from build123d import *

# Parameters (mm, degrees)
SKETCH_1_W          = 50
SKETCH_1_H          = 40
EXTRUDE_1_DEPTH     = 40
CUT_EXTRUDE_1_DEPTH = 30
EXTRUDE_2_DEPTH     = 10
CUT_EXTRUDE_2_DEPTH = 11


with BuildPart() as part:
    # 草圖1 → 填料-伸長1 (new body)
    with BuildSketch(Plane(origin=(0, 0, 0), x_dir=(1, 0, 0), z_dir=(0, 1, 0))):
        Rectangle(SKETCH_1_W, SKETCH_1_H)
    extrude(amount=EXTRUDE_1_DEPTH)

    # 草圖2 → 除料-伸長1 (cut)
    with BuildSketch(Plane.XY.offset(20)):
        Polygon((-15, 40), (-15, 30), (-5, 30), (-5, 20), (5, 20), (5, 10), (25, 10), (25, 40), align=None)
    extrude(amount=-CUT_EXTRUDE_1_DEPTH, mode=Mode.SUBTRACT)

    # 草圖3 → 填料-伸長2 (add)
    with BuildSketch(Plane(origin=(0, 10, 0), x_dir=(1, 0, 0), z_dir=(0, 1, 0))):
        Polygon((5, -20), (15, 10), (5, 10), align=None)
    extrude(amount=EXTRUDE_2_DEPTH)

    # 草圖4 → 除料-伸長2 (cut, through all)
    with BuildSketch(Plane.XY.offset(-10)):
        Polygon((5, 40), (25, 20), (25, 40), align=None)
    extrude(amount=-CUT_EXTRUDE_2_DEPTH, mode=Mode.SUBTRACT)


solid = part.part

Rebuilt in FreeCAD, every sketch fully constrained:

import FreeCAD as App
import Part
import Sketcher

V = App.Vector
Q = App.Units.Quantity

doc = App.newDocument("Part")
params = doc.addObject("Spreadsheet::Sheet", "Params")
for row, (alias, value) in enumerate([
    ("sketch1_width", "50 mm"),
    ("sketch1_height", "40 mm"),
    ("pad1_length", "40 mm"),
    ("sketch2_width", "10 mm"),
    ("sketch2_width2", "20 mm"),
    ("pocket1_length", "30 mm"),
    ("sketch3_width", "10 mm"),
    ("sketch3_height", "30 mm"),
    ("pad2_length", "10 mm"),
    ("sketch4_width", "20 mm"),
], start=1):
    params.set(f"A{row}", alias)
    params.set(f"B{row}", "=" + value)
    params.setAlias(f"B{row}", alias)

body = doc.addObject("PartDesign::Body", "Body")

sketch1 = doc.addObject("Sketcher::SketchObject", "Sketch")
body.addObject(sketch1)
sketch1.AttachmentSupport = (doc.XZ_Plane, [""])
sketch1.MapMode = "FlatFace"
sketch1.addGeometry([
    Part.LineSegment(V(-25, -20, 0), V(-25, 20, 0)),
    Part.LineSegment(V(-25, 20, 0), V(25, 20, 0)),
    Part.LineSegment(V(25, 20, 0), V(25, -20, 0)),
    Part.LineSegment(V(25, -20, 0), V(-25, -20, 0)),
], False)
sketch1.addConstraint([
    Sketcher.Constraint("Coincident", 0, 2, 1, 1),
    Sketcher.Constraint("Coincident", 1, 2, 2, 1),
    Sketcher.Constraint("Coincident", 2, 2, 3, 1),
    Sketcher.Constraint("Coincident", 3, 2, 0, 1),
    Sketcher.Constraint("Vertical", 0),
    Sketcher.Constraint("Horizontal", 1),
    Sketcher.Constraint("Vertical", 2),
    Sketcher.Constraint("Horizontal", 3),
    Sketcher.Constraint("Symmetric", 0, 2, 2, 2, -1, 1),
    Sketcher.Constraint("DistanceX", 1, 1, 1, 2, Q("50 mm")),
    Sketcher.Constraint("DistanceY", 0, 1, 0, 2, Q("40 mm")),
])
sketch1.setExpression("Constraints[9]", "Params.sketch1_width")
sketch1.setExpression("Constraints[10]", "Params.sketch1_height")
pad1 = doc.addObject("PartDesign::Pad", "Pad")
body.addObject(pad1)
pad1.Profile = sketch1
pad1.setExpression("Length", "Params.pad1_length")
pad1.Reversed = True

sketch2 = doc.addObject("Sketcher::SketchObject", "Sketch001")
body.addObject(sketch2)
sketch2.AttachmentSupport = (doc.XY_Plane, [""])
sketch2.MapMode = "FlatFace"
sketch2.AttachmentOffset = App.Placement(V(0, 0, 20), App.Rotation())
sketch2.addGeometry([
    Part.LineSegment(V(-15, 40, 0), V(-15, 30, 0)),
    Part.LineSegment(V(-15, 30, 0), V(-5, 30, 0)),
    Part.LineSegment(V(-5, 30, 0), V(-5, 20, 0)),
    Part.LineSegment(V(-5, 20, 0), V(5, 20, 0)),
    Part.LineSegment(V(5, 20, 0), V(5, 10, 0)),
    Part.LineSegment(V(5, 10, 0), V(25, 10, 0)),
    Part.LineSegment(V(25, 10, 0), V(25, 40, 0)),
    Part.LineSegment(V(25, 40, 0), V(-15, 40, 0)),
], False)
sketch2.addConstraint([
    Sketcher.Constraint("Coincident", 0, 2, 1, 1),
    Sketcher.Constraint("Coincident", 1, 2, 2, 1),
    Sketcher.Constraint("Coincident", 2, 2, 3, 1),
    Sketcher.Constraint("Coincident", 3, 2, 4, 1),
    Sketcher.Constraint("Coincident", 4, 2, 5, 1),
    Sketcher.Constraint("Coincident", 5, 2, 6, 1),
    Sketcher.Constraint("Coincident", 6, 2, 7, 1),
    Sketcher.Constraint("Coincident", 7, 2, 0, 1),
    Sketcher.Constraint("Vertical", 0),
    Sketcher.Constraint("Horizontal", 1),
    Sketcher.Constraint("Vertical", 2),
    Sketcher.Constraint("Horizontal", 3),
    Sketcher.Constraint("Vertical", 4),
    Sketcher.Constraint("Horizontal", 5),
    Sketcher.Constraint("Vertical", 6),
    Sketcher.Constraint("Horizontal", 7),
    Sketcher.Constraint("Equal", 1, 3),
    Sketcher.Constraint("Equal", 3, 0),
    Sketcher.Constraint("Equal", 0, 2),
    Sketcher.Constraint("Equal", 2, 4),
    Sketcher.Constraint("DistanceX", 1, 1, 1, 2, Q("10 mm")),
    Sketcher.Constraint("DistanceX", 5, 1, 5, 2, Q("20 mm")),
    Sketcher.Constraint("DistanceX", 0, 2, -1, 1, Q("15 mm")),
    Sketcher.Constraint("DistanceY", -1, 1, 0, 2, Q("30 mm")),
])
sketch2.setExpression("Constraints[20]", "Params.sketch2_width")
sketch2.setExpression("Constraints[21]", "Params.sketch2_width2")
pocket1 = doc.addObject("PartDesign::Pocket", "Pocket")
body.addObject(pocket1)
pocket1.Profile = sketch2
pocket1.setExpression("Length", "Params.pocket1_length")

sketch3 = doc.addObject("Sketcher::SketchObject", "Sketch002")
body.addObject(sketch3)
sketch3.AttachmentSupport = (doc.XZ_Plane, [""])
sketch3.MapMode = "FlatFace"
sketch3.AttachmentOffset = App.Placement(V(0, 0, -10), App.Rotation())
sketch3.addGeometry([
    Part.LineSegment(V(5, 20, 0), V(15, -10, 0)),
    Part.LineSegment(V(15, -10, 0), V(5, -10, 0)),
    Part.LineSegment(V(5, -10, 0), V(5, 20, 0)),
], False)
sketch3.addConstraint([
    Sketcher.Constraint("Coincident", 0, 2, 1, 1),
    Sketcher.Constraint("Coincident", 1, 2, 2, 1),
    Sketcher.Constraint("Coincident", 2, 2, 0, 1),
    Sketcher.Constraint("Horizontal", 1),
    Sketcher.Constraint("Vertical", 2),
    Sketcher.Constraint("DistanceX", 1, 2, 1, 1, Q("10 mm")),
    Sketcher.Constraint("DistanceY", 2, 1, 2, 2, Q("30 mm")),
    Sketcher.Constraint("DistanceX", -1, 1, 0, 2, Q("15 mm")),
    Sketcher.Constraint("DistanceY", 0, 2, -1, 1, Q("10 mm")),
])
sketch3.setExpression("Constraints[5]", "Params.sketch3_width")
sketch3.setExpression("Constraints[6]", "Params.sketch3_height")
pad2 = doc.addObject("PartDesign::Pad", "Pad001")
body.addObject(pad2)
pad2.Profile = sketch3
pad2.setExpression("Length", "Params.pad2_length")
pad2.Reversed = True

sketch4 = doc.addObject("Sketcher::SketchObject", "Sketch003")
body.addObject(sketch4)
sketch4.AttachmentSupport = (doc.XY_Plane, [""])
sketch4.MapMode = "FlatFace"
sketch4.AttachmentOffset = App.Placement(V(0, 0, -10), App.Rotation())
sketch4.addGeometry([
    Part.LineSegment(V(5, 40, 0), V(25, 20, 0)),
    Part.LineSegment(V(25, 20, 0), V(25, 40, 0)),
    Part.LineSegment(V(25, 40, 0), V(5, 40, 0)),
], False)
sketch4.addConstraint([
    Sketcher.Constraint("Coincident", 0, 2, 1, 1),
    Sketcher.Constraint("Coincident", 1, 2, 2, 1),
    Sketcher.Constraint("Coincident", 2, 2, 0, 1),
    Sketcher.Constraint("Vertical", 1),
    Sketcher.Constraint("Horizontal", 2),
    Sketcher.Constraint("Equal", 2, 1),
    Sketcher.Constraint("DistanceX", 2, 2, 2, 1, Q("20 mm")),
    Sketcher.Constraint("DistanceX", -1, 1, 0, 2, Q("25 mm")),
    Sketcher.Constraint("DistanceY", -1, 1, 0, 2, Q("20 mm")),
])
sketch4.setExpression("Constraints[6]", "Params.sketch4_width")
pocket2 = doc.addObject("PartDesign::Pocket", "Pocket001")
body.addObject(pocket2)
pocket2.Profile = sketch4
pocket2.Type = "ThroughAll"

doc.recompute()
